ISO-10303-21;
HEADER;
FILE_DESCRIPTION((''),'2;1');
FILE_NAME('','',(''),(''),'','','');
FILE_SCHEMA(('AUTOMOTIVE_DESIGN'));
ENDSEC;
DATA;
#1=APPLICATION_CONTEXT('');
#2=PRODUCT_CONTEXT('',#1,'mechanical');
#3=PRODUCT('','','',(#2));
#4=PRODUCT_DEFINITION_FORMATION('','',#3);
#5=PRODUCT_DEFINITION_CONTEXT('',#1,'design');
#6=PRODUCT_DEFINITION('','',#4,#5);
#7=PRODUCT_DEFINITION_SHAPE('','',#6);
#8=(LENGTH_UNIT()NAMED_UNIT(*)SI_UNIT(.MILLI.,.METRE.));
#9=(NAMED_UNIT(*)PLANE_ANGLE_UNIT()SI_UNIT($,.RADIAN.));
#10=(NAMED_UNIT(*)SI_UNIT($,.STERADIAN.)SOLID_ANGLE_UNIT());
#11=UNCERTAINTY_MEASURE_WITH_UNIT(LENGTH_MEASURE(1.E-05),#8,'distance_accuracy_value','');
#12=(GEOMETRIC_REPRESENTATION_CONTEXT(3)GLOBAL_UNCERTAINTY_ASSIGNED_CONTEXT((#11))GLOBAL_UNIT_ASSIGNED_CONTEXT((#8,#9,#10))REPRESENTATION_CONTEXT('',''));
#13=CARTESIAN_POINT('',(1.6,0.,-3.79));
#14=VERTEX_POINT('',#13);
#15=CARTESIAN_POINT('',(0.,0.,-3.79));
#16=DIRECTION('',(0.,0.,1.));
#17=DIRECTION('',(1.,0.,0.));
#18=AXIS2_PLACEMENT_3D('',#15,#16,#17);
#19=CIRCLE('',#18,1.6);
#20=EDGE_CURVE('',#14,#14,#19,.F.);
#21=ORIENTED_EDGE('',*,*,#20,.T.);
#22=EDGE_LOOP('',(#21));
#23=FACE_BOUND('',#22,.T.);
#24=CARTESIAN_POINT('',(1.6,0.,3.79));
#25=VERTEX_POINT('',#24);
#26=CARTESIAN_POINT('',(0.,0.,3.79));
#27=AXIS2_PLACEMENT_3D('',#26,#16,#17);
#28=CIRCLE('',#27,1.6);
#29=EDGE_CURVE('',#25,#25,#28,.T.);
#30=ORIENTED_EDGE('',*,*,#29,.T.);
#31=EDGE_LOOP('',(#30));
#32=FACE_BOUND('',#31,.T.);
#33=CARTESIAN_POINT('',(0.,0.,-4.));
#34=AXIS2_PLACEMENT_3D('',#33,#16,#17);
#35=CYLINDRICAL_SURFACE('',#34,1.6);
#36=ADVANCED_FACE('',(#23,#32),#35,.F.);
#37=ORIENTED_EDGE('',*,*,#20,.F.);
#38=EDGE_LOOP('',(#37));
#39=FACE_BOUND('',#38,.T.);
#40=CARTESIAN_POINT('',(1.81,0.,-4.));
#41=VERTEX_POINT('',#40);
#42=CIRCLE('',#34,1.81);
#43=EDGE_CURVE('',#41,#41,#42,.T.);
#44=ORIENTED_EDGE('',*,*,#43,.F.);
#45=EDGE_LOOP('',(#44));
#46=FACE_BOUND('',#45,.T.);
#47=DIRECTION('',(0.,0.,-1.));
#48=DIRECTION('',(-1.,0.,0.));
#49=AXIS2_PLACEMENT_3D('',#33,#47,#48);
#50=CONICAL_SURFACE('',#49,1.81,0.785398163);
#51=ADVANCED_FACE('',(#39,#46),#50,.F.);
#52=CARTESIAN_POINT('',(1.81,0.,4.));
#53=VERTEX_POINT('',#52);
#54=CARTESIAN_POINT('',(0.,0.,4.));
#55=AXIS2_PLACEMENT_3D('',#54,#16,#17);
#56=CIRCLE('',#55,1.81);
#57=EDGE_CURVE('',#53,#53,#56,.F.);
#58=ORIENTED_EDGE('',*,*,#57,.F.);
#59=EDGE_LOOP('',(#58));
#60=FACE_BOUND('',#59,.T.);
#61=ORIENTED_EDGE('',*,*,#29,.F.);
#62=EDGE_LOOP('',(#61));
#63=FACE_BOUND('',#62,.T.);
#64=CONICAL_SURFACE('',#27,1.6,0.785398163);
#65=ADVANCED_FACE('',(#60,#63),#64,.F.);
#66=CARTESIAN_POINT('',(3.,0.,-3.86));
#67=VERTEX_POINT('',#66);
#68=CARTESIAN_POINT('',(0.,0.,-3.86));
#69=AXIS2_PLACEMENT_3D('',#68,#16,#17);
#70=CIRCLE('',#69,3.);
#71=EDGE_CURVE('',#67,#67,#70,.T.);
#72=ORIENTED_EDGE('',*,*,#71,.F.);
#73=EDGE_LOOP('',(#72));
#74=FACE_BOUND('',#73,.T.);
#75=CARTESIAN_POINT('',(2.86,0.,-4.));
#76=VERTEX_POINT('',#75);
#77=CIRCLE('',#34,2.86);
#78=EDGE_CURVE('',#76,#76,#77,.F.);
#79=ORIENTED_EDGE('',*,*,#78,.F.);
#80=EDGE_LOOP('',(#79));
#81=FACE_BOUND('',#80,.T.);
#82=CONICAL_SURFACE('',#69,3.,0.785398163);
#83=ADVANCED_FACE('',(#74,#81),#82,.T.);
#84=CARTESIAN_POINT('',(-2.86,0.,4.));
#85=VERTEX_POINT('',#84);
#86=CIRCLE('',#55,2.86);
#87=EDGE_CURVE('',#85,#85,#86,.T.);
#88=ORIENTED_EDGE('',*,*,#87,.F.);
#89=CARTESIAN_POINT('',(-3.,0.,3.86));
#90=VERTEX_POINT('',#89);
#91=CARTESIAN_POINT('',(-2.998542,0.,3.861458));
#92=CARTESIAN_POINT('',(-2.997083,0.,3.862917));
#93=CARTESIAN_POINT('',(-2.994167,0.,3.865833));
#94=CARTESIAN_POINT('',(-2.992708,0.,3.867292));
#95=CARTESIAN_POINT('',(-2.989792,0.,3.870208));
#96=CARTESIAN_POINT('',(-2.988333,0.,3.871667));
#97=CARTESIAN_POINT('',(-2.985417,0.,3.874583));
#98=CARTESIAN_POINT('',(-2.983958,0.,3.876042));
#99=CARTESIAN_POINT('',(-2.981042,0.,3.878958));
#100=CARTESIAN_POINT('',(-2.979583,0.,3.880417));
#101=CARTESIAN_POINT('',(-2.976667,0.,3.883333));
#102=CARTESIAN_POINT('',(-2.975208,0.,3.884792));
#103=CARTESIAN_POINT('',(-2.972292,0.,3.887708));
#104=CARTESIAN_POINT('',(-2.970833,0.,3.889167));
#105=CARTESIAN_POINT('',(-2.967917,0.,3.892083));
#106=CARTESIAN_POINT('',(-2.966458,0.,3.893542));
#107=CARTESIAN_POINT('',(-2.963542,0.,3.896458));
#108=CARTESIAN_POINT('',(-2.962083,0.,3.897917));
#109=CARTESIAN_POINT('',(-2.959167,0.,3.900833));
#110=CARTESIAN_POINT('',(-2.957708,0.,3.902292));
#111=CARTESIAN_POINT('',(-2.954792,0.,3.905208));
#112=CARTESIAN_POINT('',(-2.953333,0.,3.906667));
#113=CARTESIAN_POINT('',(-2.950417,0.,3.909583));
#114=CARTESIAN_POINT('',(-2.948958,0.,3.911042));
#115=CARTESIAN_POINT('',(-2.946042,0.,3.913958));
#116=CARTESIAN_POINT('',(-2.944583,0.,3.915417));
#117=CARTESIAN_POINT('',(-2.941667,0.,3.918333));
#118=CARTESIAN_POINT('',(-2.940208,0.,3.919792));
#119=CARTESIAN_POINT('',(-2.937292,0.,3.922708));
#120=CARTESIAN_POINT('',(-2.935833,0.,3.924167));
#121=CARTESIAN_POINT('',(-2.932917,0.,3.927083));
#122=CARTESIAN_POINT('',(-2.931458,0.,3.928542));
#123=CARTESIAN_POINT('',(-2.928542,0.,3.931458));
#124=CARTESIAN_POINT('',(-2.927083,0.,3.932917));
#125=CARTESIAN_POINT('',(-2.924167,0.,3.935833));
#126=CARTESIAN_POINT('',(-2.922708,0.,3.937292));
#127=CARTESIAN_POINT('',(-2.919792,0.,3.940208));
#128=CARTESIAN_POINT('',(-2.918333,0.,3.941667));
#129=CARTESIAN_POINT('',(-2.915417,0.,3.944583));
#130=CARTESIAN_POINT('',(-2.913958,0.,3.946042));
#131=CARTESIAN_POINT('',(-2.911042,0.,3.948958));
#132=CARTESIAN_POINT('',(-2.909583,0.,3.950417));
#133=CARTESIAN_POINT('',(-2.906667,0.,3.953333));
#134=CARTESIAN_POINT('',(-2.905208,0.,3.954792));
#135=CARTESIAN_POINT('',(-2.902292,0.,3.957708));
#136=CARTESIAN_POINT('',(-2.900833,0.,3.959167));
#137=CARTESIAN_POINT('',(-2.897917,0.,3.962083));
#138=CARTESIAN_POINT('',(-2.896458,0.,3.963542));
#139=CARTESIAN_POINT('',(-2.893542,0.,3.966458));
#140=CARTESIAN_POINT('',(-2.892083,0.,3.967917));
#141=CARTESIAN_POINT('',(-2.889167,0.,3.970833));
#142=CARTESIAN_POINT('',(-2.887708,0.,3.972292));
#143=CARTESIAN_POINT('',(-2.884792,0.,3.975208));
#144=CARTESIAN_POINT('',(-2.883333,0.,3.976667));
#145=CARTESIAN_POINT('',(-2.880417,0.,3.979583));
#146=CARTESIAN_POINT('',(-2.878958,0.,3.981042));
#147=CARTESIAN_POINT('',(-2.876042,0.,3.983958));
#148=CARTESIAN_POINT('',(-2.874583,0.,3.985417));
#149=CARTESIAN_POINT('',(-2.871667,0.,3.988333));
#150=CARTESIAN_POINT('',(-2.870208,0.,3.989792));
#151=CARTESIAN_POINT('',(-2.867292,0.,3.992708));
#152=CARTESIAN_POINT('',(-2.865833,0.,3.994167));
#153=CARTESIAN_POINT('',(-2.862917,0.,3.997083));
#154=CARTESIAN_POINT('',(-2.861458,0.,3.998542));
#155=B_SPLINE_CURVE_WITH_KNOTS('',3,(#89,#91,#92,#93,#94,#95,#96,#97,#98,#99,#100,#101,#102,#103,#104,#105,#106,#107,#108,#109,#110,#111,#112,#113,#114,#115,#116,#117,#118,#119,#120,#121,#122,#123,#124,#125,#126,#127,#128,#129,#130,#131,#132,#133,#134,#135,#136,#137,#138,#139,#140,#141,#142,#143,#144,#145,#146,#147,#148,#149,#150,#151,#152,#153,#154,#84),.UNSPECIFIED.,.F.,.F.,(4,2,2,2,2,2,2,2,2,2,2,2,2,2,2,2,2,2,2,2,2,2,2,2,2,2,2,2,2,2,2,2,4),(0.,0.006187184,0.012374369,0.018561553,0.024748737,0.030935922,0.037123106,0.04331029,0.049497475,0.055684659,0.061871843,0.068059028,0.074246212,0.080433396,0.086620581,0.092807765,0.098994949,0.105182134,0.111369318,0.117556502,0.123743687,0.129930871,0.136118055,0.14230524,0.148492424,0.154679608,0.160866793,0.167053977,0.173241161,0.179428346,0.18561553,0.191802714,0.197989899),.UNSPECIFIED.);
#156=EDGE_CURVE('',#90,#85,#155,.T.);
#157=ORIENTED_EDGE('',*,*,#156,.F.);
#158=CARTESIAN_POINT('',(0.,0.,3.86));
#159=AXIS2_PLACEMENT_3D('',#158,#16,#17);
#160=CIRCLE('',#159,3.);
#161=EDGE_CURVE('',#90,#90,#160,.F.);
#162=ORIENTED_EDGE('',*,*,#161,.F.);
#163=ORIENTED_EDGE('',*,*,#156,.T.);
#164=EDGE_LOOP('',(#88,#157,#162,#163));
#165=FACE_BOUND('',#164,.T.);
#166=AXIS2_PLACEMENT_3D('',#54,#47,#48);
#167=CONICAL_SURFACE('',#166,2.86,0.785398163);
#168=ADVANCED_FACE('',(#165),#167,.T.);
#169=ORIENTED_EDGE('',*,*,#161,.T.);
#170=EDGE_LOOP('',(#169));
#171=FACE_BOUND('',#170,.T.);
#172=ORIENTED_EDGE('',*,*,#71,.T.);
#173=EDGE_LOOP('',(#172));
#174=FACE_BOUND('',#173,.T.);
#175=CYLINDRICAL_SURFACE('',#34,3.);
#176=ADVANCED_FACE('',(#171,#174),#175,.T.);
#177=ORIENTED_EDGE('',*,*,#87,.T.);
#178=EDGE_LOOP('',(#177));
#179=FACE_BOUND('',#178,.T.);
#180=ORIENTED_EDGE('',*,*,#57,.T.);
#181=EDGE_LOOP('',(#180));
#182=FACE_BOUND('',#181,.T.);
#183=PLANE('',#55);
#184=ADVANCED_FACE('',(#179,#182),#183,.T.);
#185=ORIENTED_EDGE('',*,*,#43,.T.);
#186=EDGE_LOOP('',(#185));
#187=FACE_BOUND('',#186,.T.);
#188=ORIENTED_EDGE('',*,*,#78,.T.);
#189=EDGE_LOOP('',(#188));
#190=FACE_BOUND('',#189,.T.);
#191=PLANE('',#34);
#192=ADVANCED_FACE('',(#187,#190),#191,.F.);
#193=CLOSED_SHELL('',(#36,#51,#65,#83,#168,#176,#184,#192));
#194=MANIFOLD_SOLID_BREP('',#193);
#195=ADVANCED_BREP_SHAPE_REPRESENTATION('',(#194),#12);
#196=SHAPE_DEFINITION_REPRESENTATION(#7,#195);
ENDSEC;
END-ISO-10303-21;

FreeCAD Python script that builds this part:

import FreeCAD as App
import Part
import Sketcher
from FreeCAD import Vector


def edges_at(feature, points):
    """Names of the edges that pass closest to the given points."""
    edges = feature.Shape.Edges
    near = lambda p: min(range(len(edges)), key=lambda i: edges[i].distToShape(Part.Vertex(*p))[0])
    return sorted({f"Edge{near(p) + 1}" for p in points})

doc = App.newDocument("Part")
body = doc.addObject("PartDesign::Body", "Body")

# Sketch on XY plane
sketch1 = body.newObject("Sketcher::SketchObject", "Sketch")
sketch1.AttachmentSupport = (doc.getObject("XY_Plane"), [""])
sketch1.MapMode = "FlatFace"
sketch1.addGeometry([
    Part.Circle(Vector(0, 0, 0), Vector(0, 0, 1), 3),
    Part.Circle(Vector(0, 0, 0), Vector(0, 0, 1), 1.6),
], False)
sketch1.addConstraint([
    Sketcher.Constraint("Coincident", 0, 3, -1, 1),
    Sketcher.Constraint("Coincident", 1, 3, -1, 1),
    Sketcher.Constraint("Diameter", 0, 6.0),
    Sketcher.Constraint("Diameter", 1, 3.2),
])
pad1 = body.newObject("PartDesign::Pad", "Pad")
pad1.Profile = sketch1
pad1.Type = "TwoLengths"
pad1.Length = 4
pad1.Length2 = 4
doc.recompute()

chamfer = body.newObject("PartDesign::Chamfer", "Chamfer")
chamfer.Base = (pad1, edges_at(pad1, [(-3, 0, -4), (-3, 0, 4)]))
chamfer.Size = 0.14
doc.recompute()

chamfer2 = body.newObject("PartDesign::Chamfer", "Chamfer001")
chamfer2.Base = (chamfer, edges_at(chamfer, [(-1.6, 0, -4), (-1.6, 0, 4)]))
chamfer2.Size = 0.21

doc.recompute()
